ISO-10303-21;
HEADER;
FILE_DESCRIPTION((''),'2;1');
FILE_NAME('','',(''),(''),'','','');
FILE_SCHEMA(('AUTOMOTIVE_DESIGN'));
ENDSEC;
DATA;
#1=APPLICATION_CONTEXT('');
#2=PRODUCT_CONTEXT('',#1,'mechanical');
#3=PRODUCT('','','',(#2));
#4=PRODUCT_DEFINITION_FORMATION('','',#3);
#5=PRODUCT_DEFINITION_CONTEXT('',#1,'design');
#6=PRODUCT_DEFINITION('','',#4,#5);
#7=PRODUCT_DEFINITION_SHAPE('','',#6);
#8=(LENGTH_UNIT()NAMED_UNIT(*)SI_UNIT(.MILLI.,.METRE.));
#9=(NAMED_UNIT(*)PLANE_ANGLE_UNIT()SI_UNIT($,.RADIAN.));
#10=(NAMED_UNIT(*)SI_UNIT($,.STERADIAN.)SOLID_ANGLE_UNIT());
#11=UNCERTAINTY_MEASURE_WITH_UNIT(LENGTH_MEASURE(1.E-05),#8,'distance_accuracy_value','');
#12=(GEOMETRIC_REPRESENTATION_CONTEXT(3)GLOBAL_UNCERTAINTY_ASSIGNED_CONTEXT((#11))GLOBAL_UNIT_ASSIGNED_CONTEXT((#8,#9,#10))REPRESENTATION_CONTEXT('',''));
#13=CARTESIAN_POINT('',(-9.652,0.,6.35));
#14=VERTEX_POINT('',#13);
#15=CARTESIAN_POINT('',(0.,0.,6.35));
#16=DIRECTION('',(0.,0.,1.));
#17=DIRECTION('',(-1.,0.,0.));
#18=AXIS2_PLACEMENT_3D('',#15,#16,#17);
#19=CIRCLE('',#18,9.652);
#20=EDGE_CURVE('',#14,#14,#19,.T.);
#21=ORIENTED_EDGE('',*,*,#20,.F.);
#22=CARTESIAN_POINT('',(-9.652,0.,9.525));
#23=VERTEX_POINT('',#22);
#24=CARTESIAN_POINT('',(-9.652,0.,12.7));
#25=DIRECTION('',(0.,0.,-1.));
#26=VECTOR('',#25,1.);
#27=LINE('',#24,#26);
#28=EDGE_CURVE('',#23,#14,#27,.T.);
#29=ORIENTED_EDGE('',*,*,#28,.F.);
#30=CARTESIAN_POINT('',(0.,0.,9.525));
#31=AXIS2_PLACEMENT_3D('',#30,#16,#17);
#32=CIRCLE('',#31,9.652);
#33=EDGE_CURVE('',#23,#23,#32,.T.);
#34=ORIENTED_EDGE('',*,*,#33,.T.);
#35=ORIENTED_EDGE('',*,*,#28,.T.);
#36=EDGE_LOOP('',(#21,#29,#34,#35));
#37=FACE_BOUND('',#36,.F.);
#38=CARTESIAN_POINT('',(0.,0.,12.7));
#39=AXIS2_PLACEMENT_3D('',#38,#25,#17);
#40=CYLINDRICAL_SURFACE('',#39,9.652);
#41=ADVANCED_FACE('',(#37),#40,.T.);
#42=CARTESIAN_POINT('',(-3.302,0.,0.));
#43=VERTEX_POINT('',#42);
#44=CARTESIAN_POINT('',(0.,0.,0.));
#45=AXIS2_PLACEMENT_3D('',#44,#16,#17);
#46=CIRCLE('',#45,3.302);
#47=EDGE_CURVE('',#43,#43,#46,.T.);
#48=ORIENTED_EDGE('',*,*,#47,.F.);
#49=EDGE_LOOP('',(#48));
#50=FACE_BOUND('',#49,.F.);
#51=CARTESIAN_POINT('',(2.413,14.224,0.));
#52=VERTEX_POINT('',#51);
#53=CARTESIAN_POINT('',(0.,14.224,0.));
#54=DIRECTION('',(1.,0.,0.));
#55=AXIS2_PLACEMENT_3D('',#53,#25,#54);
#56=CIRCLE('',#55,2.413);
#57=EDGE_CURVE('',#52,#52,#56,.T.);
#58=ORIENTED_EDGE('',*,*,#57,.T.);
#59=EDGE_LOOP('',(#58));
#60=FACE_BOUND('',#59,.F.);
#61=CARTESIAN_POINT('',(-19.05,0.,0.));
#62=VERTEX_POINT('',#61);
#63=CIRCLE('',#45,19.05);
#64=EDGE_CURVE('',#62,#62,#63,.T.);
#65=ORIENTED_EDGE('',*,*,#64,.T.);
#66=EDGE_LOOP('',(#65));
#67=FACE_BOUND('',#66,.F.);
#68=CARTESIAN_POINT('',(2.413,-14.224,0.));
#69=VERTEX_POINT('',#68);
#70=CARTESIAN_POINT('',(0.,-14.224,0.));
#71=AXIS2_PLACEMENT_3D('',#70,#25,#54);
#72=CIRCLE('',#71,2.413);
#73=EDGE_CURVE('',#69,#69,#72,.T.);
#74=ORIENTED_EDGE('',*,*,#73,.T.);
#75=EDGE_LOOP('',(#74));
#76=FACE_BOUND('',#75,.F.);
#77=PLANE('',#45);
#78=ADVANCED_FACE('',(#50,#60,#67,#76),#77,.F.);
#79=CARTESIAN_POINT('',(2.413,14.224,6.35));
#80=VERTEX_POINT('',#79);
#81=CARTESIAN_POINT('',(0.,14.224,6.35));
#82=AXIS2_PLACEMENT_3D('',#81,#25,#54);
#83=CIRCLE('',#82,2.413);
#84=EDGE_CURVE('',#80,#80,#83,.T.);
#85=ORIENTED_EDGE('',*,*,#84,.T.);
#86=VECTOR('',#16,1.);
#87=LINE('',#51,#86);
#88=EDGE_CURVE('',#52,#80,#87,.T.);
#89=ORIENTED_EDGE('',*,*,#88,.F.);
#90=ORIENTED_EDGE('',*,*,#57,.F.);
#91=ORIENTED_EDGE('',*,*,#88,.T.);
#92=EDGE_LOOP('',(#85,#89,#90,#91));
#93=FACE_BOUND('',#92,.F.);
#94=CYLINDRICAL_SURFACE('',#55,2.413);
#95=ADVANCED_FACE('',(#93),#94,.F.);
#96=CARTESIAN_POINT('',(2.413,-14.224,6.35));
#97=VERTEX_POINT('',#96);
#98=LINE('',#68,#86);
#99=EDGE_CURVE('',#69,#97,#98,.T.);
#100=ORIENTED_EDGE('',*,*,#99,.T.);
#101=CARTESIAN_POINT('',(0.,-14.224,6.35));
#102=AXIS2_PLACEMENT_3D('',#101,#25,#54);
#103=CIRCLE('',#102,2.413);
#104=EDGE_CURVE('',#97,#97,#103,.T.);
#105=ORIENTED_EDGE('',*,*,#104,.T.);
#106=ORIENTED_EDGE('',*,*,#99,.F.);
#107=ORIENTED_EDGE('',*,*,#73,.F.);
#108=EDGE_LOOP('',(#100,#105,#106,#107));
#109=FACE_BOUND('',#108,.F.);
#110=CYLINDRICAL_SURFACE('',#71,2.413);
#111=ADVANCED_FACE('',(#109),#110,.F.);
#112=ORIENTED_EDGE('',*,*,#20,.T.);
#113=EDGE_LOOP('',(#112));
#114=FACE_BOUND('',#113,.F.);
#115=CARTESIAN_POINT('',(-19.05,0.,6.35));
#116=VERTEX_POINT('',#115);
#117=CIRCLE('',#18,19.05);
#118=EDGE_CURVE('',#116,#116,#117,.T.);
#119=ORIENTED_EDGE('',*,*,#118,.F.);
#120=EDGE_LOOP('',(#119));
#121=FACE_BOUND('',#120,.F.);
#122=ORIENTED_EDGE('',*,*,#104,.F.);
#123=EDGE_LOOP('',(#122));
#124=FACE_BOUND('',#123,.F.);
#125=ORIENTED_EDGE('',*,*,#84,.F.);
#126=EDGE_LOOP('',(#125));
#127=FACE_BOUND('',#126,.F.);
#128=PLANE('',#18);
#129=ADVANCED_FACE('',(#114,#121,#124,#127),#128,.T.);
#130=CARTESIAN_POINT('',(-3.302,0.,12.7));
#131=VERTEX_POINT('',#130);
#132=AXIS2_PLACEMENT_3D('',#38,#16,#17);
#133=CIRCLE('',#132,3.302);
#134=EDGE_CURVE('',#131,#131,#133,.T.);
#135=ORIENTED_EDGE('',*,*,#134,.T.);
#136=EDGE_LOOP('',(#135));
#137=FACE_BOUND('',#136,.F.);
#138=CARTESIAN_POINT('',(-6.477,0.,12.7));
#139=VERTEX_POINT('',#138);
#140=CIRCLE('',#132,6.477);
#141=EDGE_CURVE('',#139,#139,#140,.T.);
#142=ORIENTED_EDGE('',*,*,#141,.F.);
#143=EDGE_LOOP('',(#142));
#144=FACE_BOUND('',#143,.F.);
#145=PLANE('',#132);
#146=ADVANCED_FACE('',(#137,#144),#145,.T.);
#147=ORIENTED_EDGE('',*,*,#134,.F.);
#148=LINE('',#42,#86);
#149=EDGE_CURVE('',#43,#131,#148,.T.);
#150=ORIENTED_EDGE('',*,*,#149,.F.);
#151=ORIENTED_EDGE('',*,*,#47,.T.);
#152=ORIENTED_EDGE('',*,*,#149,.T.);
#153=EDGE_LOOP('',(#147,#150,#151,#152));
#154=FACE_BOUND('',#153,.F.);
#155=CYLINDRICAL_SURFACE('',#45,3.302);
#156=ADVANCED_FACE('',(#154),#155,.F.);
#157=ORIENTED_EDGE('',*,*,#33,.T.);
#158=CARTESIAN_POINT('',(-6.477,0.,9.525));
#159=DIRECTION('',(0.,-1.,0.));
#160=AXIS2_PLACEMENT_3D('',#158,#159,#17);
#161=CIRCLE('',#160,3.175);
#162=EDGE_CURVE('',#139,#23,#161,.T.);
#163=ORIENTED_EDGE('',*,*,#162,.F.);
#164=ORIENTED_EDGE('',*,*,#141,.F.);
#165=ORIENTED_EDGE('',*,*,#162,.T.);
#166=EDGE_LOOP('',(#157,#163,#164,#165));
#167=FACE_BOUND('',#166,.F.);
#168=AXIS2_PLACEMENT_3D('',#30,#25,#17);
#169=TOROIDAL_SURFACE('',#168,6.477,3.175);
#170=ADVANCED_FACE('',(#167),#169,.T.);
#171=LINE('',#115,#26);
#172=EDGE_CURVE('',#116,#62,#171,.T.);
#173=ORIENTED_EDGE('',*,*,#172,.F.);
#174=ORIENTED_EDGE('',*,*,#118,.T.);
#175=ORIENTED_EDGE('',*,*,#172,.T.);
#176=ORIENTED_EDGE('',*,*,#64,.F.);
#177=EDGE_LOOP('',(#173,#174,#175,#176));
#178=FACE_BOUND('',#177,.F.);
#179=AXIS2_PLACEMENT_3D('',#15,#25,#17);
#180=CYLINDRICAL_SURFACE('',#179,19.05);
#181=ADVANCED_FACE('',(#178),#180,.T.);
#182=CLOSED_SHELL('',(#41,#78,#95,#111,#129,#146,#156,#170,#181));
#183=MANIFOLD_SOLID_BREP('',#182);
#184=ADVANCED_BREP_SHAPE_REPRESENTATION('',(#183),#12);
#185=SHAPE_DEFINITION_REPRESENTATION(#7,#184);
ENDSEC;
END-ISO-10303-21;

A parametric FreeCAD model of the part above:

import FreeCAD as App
import Part
import Sketcher
from FreeCAD import Vector
Q = App.Units.Quantity


def edges_at(feature, points):
    """Names of the edges that pass closest to the given points."""
    edges = feature.Shape.Edges
    near = lambda p: min(range(len(edges)), key=lambda i: edges[i].distToShape(Part.Vertex(*p))[0])
    return sorted({f"Edge{near(p) + 1}" for p in points})


def add_polygon(sketch, points):
    """Adds a closed chain of lines whose ends are joined by coincident constraints."""
    first, n = sketch.GeometryCount, len(points)
    for a, b in zip(points, points[1:] + points[:1]):
        sketch.addGeometry(Part.LineSegment(App.Vector(*a, 0), App.Vector(*b, 0)), False)
    for i in range(n):
        sketch.addConstraint(Sketcher.Constraint("Coincident", first + i, 2, first + (i + 1) % n, 1))

doc = App.newDocument("Part")
body = doc.addObject("PartDesign::Body", "Body")

sketch1 = body.newObject("Sketcher::SketchObject", "Sketch")
sketch1.AttachmentSupport = (doc.getObject("XZ_Plane"), [""])
sketch1.MapMode = "FlatFace"
add_polygon(sketch1, [(-19, 0), (-3, 0), (-3, 13), (-10, 13), (-10, 6), (-19, 6)])
sketch1.addConstraint(Sketcher.Constraint("Horizontal", 0))
sketch1.addConstraint(Sketcher.Constraint("Vertical", 1))
sketch1.addConstraint(Sketcher.Constraint("Horizontal", 2))
sketch1.addConstraint(Sketcher.Constraint("Vertical", 3))
sketch1.addConstraint(Sketcher.Constraint("Horizontal", 4))
sketch1.addConstraint(Sketcher.Constraint("Vertical", 5))
sketch1.addConstraint(Sketcher.Constraint("PointOnObject", 0, 2, -1))
sketch1.addConstraint(Sketcher.Constraint("Equal", 2, 3))
sketch1.addConstraint(Sketcher.Constraint("Equal", 3, 5))
sketch1.addConstraint(Sketcher.Constraint("DistanceY", 1, 1, 1, 2, Q("0.5 in")))
sketch1.addConstraint(Sketcher.Constraint("DistanceX", 0, 1, 0, 2, Q("0.62 in")))
sketch1.addConstraint(Sketcher.Constraint("DistanceX", 0, 2, -1, 1, Q("0.13 in")))
revolution = body.newObject("PartDesign::Revolution", "Revolution")
revolution.Profile = sketch1
revolution.ReferenceAxis = (sketch1, ["V_Axis"])
revolution.Angle = 360

sketch2 = body.newObject("Sketcher::SketchObject", "Sketch001")
sketch2.AttachmentSupport = (doc.getObject("XY_Plane"), [""])
sketch2.MapMode = "FlatFace"
sketch2.addGeometry(Part.Circle(Vector(0, 14.2, 0), Vector(0, 0, 1), 2.4), False)
sketch2.addGeometry(Part.Circle(Vector(0, -14.2, 0), Vector(0, 0, 1), 2.4), False)
sketch2.addConstraint(Sketcher.Constraint("Equal", 0, 1))
sketch2.addConstraint(Sketcher.Constraint("Symmetric", 0, 3, 1, 3, -1, 1))
sketch2.addConstraint(Sketcher.Constraint("PointOnObject", 0, 3, -2))
sketch2.addConstraint(Sketcher.Constraint("Diameter", 0, Q("0.19 in")))
sketch2.addConstraint(Sketcher.Constraint("DistanceY", -1, 1, 0, 3, Q("0.56 in")))
pocket1 = body.newObject("PartDesign::Pocket", "Pocket")
pocket1.Profile = sketch2
pocket1.Length = Q("1 in")
pocket1.Reversed = True
doc.recompute()

fillet = body.newObject("PartDesign::Fillet", "Fillet")
fillet.Base = (pocket1, edges_at(pocket1, [(9.652, 0, 12.7)]))
fillet.Radius = Q("0.125 in")

doc.recompute()
